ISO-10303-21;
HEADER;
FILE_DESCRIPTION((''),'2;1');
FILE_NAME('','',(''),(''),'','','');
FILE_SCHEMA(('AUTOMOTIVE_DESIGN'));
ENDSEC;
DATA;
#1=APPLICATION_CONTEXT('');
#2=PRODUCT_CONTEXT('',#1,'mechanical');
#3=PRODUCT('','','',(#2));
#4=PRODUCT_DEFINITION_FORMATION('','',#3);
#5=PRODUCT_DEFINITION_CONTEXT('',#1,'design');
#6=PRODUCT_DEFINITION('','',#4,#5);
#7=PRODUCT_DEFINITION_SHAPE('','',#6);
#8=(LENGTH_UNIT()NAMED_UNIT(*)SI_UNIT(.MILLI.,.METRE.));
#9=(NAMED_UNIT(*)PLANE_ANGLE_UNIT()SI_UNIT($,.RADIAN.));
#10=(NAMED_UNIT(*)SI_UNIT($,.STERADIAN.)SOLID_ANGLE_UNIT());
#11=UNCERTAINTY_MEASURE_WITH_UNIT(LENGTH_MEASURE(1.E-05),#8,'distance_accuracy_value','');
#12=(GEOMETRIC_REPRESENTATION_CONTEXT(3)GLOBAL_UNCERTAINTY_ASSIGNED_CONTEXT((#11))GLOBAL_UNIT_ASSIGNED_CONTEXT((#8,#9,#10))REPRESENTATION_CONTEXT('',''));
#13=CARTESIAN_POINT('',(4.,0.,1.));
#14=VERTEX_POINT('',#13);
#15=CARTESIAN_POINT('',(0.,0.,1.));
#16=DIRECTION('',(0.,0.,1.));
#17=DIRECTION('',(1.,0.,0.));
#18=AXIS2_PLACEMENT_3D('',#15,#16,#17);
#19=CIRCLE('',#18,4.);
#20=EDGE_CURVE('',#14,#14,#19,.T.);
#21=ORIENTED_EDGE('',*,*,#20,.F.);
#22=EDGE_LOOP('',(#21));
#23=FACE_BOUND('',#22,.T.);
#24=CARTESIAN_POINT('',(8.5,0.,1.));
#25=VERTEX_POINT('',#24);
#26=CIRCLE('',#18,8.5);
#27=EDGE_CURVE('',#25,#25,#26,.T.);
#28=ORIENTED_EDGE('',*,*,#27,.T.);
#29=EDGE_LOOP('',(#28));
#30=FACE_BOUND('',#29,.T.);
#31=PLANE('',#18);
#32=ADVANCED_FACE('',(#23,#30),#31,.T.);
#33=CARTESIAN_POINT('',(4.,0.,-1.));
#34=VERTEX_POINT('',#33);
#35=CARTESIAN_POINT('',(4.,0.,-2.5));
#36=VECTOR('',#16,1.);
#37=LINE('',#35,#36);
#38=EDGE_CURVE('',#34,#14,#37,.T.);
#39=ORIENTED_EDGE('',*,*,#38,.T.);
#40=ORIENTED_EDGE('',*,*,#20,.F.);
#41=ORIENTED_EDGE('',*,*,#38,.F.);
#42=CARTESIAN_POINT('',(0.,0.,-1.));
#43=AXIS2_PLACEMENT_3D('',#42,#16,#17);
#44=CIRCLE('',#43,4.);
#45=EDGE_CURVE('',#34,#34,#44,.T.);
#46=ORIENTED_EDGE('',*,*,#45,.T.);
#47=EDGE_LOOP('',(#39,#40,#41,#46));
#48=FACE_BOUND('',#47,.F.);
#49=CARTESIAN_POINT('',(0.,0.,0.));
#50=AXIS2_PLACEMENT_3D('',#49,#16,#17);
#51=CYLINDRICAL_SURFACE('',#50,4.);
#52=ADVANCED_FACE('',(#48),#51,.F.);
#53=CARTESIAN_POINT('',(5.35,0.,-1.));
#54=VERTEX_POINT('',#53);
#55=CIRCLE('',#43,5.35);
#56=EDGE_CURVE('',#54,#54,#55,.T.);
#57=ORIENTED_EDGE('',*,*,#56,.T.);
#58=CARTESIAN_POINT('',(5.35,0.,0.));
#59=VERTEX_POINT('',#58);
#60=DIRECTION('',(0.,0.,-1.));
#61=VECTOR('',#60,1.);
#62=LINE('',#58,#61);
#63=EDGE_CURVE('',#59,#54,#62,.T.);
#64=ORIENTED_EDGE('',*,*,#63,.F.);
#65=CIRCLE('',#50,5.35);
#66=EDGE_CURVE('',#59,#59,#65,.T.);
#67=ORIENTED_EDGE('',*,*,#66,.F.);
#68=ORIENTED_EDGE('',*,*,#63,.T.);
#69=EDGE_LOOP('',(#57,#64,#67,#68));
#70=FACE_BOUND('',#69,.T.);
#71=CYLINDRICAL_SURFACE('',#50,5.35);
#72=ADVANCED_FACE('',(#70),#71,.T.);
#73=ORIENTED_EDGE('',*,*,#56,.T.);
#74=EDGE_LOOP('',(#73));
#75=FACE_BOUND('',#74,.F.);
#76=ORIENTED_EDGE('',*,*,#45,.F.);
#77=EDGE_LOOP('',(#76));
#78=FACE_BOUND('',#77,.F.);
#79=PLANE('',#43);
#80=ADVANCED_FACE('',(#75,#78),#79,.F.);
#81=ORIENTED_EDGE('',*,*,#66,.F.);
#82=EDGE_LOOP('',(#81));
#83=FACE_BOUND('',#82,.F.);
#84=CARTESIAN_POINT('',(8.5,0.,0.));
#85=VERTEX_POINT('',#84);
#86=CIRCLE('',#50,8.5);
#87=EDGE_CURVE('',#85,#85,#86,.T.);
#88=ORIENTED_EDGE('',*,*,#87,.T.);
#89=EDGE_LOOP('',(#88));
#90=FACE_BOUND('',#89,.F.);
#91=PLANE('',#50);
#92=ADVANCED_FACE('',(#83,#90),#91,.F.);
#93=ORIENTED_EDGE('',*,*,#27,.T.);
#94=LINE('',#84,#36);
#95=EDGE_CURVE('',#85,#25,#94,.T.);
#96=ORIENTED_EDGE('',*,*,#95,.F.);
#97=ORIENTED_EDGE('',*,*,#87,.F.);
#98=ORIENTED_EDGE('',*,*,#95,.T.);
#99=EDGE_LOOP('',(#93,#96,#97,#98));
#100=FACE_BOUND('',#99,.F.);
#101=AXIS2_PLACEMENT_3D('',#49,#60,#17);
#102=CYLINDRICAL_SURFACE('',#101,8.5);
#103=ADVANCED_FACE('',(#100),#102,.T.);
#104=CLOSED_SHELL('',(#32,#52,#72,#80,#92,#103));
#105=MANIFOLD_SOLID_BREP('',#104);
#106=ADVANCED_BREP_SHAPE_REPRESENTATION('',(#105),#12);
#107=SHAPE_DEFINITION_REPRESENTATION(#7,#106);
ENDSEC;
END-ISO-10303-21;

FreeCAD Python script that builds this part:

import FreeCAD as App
import Part
import Sketcher

doc = App.newDocument("Part")
body = doc.addObject("PartDesign::Body", "Body")

# Sketch on XY plane
sketch1 = body.newObject("Sketcher::SketchObject", "Sketch")
sketch1.AttachmentSupport = (doc.getObject("XY_Plane"), [""])
sketch1.MapMode = "FlatFace"
sketch1.addGeometry(Part.Circle(App.Vector(0, 0, 0), App.Vector(0, 0, 1), 8), False)
sketch1.addConstraint([
    Sketcher.Constraint("Coincident", 0, 3, -1, 1),
    Sketcher.Constraint("Diameter", 0, 17.0),
])
pad1 = body.newObject("PartDesign::Pad", "Pad")
pad1.Profile = sketch1
pad1.Length = 1

# Sketch on XY plane
sketch2 = body.newObject("Sketcher::SketchObject", "Sketch001")
sketch2.AttachmentSupport = (doc.getObject("XY_Plane"), [""])
sketch2.MapMode = "FlatFace"
sketch2.addGeometry(Part.Circle(App.Vector(0, 0, 0), App.Vector(0, 0, 1), 5), False)
sketch2.addConstraint([
    Sketcher.Constraint("Coincident", 0, 3, -1, 1),
    Sketcher.Constraint("Diameter", 0, 10.7),
])
pad2 = body.newObject("PartDesign::Pad", "Pad001")
pad2.Profile = sketch2
pad2.Length = 1
pad2.Reversed = True

# Sketch on XY plane
sketch3 = body.newObject("Sketcher::SketchObject", "Sketch002")
sketch3.AttachmentSupport = (doc.getObject("XY_Plane"), [""])
sketch3.MapMode = "FlatFace"
sketch3.addGeometry(Part.Circle(App.Vector(0, 0, 0), App.Vector(0, 0, 1), 4), False)
sketch3.addConstraint([
    Sketcher.Constraint("Coincident", 0, 3, -1, 1),
    Sketcher.Constraint("Diameter", 0, 8.0),
])
pocket1 = body.newObject("PartDesign::Pocket", "Pocket")
pocket1.Profile = sketch3
pocket1.Length = 5
pocket1.Midplane = True

doc.recompute()
